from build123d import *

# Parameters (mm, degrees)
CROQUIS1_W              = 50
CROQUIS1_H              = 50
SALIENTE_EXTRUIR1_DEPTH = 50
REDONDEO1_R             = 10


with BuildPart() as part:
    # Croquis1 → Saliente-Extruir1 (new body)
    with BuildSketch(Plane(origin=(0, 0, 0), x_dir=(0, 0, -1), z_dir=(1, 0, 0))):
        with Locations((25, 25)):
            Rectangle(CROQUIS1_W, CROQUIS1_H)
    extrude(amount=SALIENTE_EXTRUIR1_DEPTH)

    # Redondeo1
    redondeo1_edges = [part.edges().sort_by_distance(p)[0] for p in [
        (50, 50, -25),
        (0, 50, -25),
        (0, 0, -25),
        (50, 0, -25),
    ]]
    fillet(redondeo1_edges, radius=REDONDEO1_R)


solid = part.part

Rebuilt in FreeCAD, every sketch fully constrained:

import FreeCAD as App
import Part
import Sketcher
from FreeCAD import Vector
Q = App.Units.Quantity


def edges_at(feature, points):
    """Names of the edges that pass closest to the given points."""
    edges = feature.Shape.Edges
    near = lambda p: min(range(len(edges)), key=lambda i: edges[i].distToShape(Part.Vertex(*p))[0])
    return sorted({f"Edge{near(p) + 1}" for p in points})

doc = App.newDocument("Part")
params = doc.addObject("Spreadsheet::Sheet", "Params")
for row, (alias, value) in enumerate([
    ("sketch1_width", "50 mm"),
    ("pad1_length", "50 mm"),
    ("fillet_radius", "10 mm"),
], start=1):
    params.set(f"A{row}", alias)
    params.set(f"B{row}", "=" + value)
    params.setAlias(f"B{row}", alias)

body = doc.addObject("PartDesign::Body", "Body")

# Sketch on YZ plane
sketch1 = body.newObject("Sketcher::SketchObject", "Sketch")
sketch1.AttachmentSupport = (doc.getObject("YZ_Plane"), [""])
sketch1.MapMode = "FlatFace"
sketch1.addGeometry(Part.LineSegment(Vector(50, 0, 0), Vector(0, 0, 0)), False)
sketch1.addGeometry(Part.LineSegment(Vector(0, 0, 0), Vector(0, -50, 0)), False)
sketch1.addGeometry(Part.LineSegment(Vector(0, -50, 0), Vector(50, -50, 0)), False)
sketch1.addGeometry(Part.LineSegment(Vector(50, -50, 0), Vector(50, 0, 0)), False)
sketch1.addConstraint(Sketcher.Constraint("Coincident", 0, 2, 1, 1))
sketch1.addConstraint(Sketcher.Constraint("Coincident", 1, 2, 2, 1))
sketch1.addConstraint(Sketcher.Constraint("Coincident", 2, 2, 3, 1))
sketch1.addConstraint(Sketcher.Constraint("Coincident", 3, 2, 0, 1))
sketch1.addConstraint(Sketcher.Constraint("Horizontal", 0))
sketch1.addConstraint(Sketcher.Constraint("Vertical", 1))
sketch1.addConstraint(Sketcher.Constraint("Horizontal", 2))
sketch1.addConstraint(Sketcher.Constraint("Vertical", 3))
sketch1.addConstraint(Sketcher.Constraint("Coincident", 0, 2, -1, 1))
sketch1.addConstraint(Sketcher.Constraint("Equal", 2, 1))
sketch1.addConstraint(Sketcher.Constraint("DistanceX", 0, 2, 0, 1, Q("50 mm")))
sketch1.setExpression("Constraints[10]", "Params.sketch1_width")
pad1 = body.newObject("PartDesign::Pad", "Pad")
pad1.Profile = sketch1
pad1.setExpression("Length", "Params.pad1_length")
doc.recompute()

fillet = body.newObject("PartDesign::Fillet", "Fillet")
fillet.Base = (pad1, edges_at(pad1, [
    (50, 50, -25),
    (0, 50, -25),
    (0, 0, -25),
    (50, 0, -25),
]))
fillet.setExpression("Radius", "Params.fillet_radius")

doc.recompute()
